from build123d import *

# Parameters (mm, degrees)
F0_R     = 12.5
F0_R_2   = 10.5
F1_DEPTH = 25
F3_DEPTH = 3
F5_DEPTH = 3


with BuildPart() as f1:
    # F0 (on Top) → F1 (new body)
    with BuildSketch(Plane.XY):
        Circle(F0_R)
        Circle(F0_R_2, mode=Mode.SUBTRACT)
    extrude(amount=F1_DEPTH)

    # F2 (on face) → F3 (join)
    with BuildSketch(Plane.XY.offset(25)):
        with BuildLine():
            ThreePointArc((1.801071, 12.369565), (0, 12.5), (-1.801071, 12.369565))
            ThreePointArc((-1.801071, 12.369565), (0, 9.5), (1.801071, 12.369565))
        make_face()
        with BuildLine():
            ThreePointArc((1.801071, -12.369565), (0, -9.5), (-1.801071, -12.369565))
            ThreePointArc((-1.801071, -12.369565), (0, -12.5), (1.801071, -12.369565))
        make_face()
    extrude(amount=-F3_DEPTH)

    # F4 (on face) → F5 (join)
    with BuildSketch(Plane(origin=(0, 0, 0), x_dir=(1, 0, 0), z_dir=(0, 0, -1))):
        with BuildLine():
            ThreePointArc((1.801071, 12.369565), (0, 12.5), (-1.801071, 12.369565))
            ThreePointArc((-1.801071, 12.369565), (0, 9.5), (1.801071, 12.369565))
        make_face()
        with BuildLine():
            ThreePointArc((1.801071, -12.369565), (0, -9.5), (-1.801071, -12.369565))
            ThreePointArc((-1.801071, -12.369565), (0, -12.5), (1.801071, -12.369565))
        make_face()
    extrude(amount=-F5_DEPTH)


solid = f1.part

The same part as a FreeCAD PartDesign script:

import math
import FreeCAD as App
import Part
import Sketcher
from FreeCAD import Vector
Q = App.Units.Quantity

doc = App.newDocument("Part")
body = doc.addObject("PartDesign::Body", "Body")

sketch1 = body.newObject("Sketcher::SketchObject", "Sketch")
sketch1.AttachmentSupport = (doc.getObject("XY_Plane"), [""])
sketch1.MapMode = "FlatFace"
sketch1.addGeometry(Part.Circle(Vector(0, 0, 0), Vector(0, 0, 1), 12), False)
sketch1.addGeometry(Part.Circle(Vector(0, 0, 0), Vector(0, 0, 1), 10), False)
sketch1.addConstraint(Sketcher.Constraint("Coincident", 0, 3, -1, 1))
sketch1.addConstraint(Sketcher.Constraint("Coincident", 1, 3, -1, 1))
sketch1.addConstraint(Sketcher.Constraint("Diameter", 0, Q("25 mm")))
sketch1.addConstraint(Sketcher.Constraint("Diameter", 1, Q("21 mm")))
pad1 = body.newObject("PartDesign::Pad", "Pad")
pad1.Profile = sketch1
pad1.Length = 25

sketch2 = body.newObject("Sketcher::SketchObject", "Sketch001")
sketch2.AttachmentSupport = (doc.getObject("XY_Plane"), [""])
sketch2.MapMode = "FlatFace"
sketch2.AttachmentOffset = App.Placement(Vector(0, 0, 25), App.Rotation())
sketch2.addGeometry(Part.ArcOfCircle(Part.Circle(Vector(0, 0, 0), Vector(0, 0, 1), 12.5), math.radians(81.72), math.radians(98.28)), False)
sketch2.addGeometry(Part.ArcOfCircle(Part.Circle(Vector(0, 11.5, 0), Vector(0, 0, 1), 2), math.radians(154), math.radians(386)), False)
sketch2.addGeometry(Part.ArcOfCircle(Part.Circle(Vector(0, -11.5, 0), Vector(0, 0, 1), 2), math.radians(-26), math.radians(206)), False)
sketch2.addGeometry(Part.ArcOfCircle(Part.Circle(Vector(0, 0, 0), Vector(0, 0, 1), 12.5), math.radians(-98.28), math.radians(-81.72)), False)
sketch2.addConstraint(Sketcher.Constraint("Coincident", 0, 1, 1, 2))
sketch2.addConstraint(Sketcher.Constraint("Coincident", 1, 1, 0, 2))
sketch2.addConstraint(Sketcher.Constraint("Coincident", 2, 1, 3, 2))
sketch2.addConstraint(Sketcher.Constraint("Coincident", 3, 1, 2, 2))
sketch2.addConstraint(Sketcher.Constraint("Equal", 1, 2))
sketch2.addConstraint(Sketcher.Constraint("Equal", 0, 3))
sketch2.addConstraint(Sketcher.Constraint("Symmetric", 1, 3, 2, 3, -1, 1))
sketch2.addConstraint(Sketcher.Constraint("Symmetric", 0, 3, 3, 3, -1, 1))
sketch2.addConstraint(Sketcher.Constraint("Symmetric", 0, 1, 1, 1, -2))
sketch2.addConstraint(Sketcher.Constraint("Radius", 1, Q("2 mm")))
sketch2.addConstraint(Sketcher.Constraint("DistanceY", 2, 3, 1, 3, Q("23 mm")))
sketch2.addConstraint(Sketcher.Constraint("Radius", 0, Q("12.499981 mm")))
sketch2.addConstraint(Sketcher.Constraint("DistanceX", -1, 1, 0, 1, Q("1.801071 mm")))
pad2 = body.newObject("PartDesign::Pad", "Pad001")
pad2.Profile = sketch2
pad2.Length = 3
pad2.Reversed = True

sketch3 = body.newObject("Sketcher::SketchObject", "Sketch002")
sketch3.AttachmentSupport = (doc.getObject("XY_Plane"), [""])
sketch3.MapMode = "FlatFace"
sketch3.addGeometry(Part.ArcOfCircle(Part.Circle(Vector(0, 0, 0), Vector(0, 0, 1), 12.5), math.radians(-98.28), math.radians(-81.72)), False)
sketch3.addGeometry(Part.ArcOfCircle(Part.Circle(Vector(0, -11.5, 0), Vector(0, 0, 1), 2), math.radians(-26), math.radians(206)), False)
sketch3.addGeometry(Part.ArcOfCircle(Part.Circle(Vector(0, 11.5, 0), Vector(0, 0, 1), 2), math.radians(154), math.radians(386)), False)
sketch3.addGeometry(Part.ArcOfCircle(Part.Circle(Vector(0, 0, 0), Vector(0, 0, 1), 12.5), math.radians(81.72), math.radians(98.28)), False)
sketch3.addConstraint(Sketcher.Constraint("Coincident", 0, 1, 1, 2))
sketch3.addConstraint(Sketcher.Constraint("Coincident", 1, 1, 0, 2))
sketch3.addConstraint(Sketcher.Constraint("Coincident", 2, 1, 3, 2))
sketch3.addConstraint(Sketcher.Constraint("Coincident", 3, 1, 2, 2))
sketch3.addConstraint(Sketcher.Constraint("Equal", 1, 2))
sketch3.addConstraint(Sketcher.Constraint("Equal", 0, 3))
sketch3.addConstraint(Sketcher.Constraint("Symmetric", 1, 3, 2, 3, -1, 1))
sketch3.addConstraint(Sketcher.Constraint("Symmetric", 0, 3, 3, 3, -1, 1))
sketch3.addConstraint(Sketcher.Constraint("Symmetric", 0, 1, 1, 1, -2))
sketch3.addConstraint(Sketcher.Constraint("Radius", 1, Q("2 mm")))
sketch3.addConstraint(Sketcher.Constraint("DistanceY", 1, 3, 2, 3, Q("23 mm")))
sketch3.addConstraint(Sketcher.Constraint("Radius", 0, Q("12.499981 mm")))
sketch3.addConstraint(Sketcher.Constraint("DistanceX", 0, 1, -1, 1, Q("1.801071 mm")))
pad3 = body.newObject("PartDesign::Pad", "Pad002")
pad3.Profile = sketch3
pad3.Length = 3

doc.recompute()
